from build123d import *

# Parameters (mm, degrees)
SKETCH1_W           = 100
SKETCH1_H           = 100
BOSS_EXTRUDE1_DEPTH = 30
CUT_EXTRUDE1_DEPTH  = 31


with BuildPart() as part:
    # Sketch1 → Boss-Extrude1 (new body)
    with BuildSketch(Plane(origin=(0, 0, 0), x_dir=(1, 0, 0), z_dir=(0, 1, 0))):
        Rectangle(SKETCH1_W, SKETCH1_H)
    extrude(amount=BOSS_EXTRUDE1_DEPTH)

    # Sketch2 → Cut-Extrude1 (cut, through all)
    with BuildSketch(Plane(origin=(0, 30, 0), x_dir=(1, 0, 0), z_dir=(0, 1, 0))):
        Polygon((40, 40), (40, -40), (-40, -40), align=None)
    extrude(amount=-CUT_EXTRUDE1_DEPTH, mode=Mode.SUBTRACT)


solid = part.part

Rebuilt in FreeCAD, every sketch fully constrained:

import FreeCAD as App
import Part
import Sketcher

V = App.Vector
Q = App.Units.Quantity

doc = App.newDocument("Part")
body = doc.addObject("PartDesign::Body", "Body")

sketch1 = body.newObject("Sketcher::SketchObject", "Sketch")
sketch1.AttachmentSupport = (doc.getObject("XZ_Plane"), [""])
sketch1.MapMode = "FlatFace"
sketch1.addGeometry([
    Part.LineSegment(V(-50, -50, 0), V(-50, 50, 0)),
    Part.LineSegment(V(-50, 50, 0), V(50, 50, 0)),
    Part.LineSegment(V(50, 50, 0), V(50, -50, 0)),
    Part.LineSegment(V(50, -50, 0), V(-50, -50, 0)),
], False)
sketch1.addConstraint([
    Sketcher.Constraint("Coincident", 0, 2, 1, 1),
    Sketcher.Constraint("Coincident", 1, 2, 2, 1),
    Sketcher.Constraint("Coincident", 2, 2, 3, 1),
    Sketcher.Constraint("Coincident", 3, 2, 0, 1),
    Sketcher.Constraint("Vertical", 0),
    Sketcher.Constraint("Horizontal", 1),
    Sketcher.Constraint("Vertical", 2),
    Sketcher.Constraint("Horizontal", 3),
    Sketcher.Constraint("Symmetric", 0, 2, 2, 2, -1, 1),
    Sketcher.Constraint("Equal", 3, 0),
    Sketcher.Constraint("DistanceX", 1, 1, 1, 2, Q("100 mm")),
])
pad1 = body.newObject("PartDesign::Pad", "Pad")
pad1.Profile = sketch1
pad1.Length = 30
pad1.Reversed = True

sketch2 = body.newObject("Sketcher::SketchObject", "Sketch001")
sketch2.AttachmentSupport = (doc.getObject("XZ_Plane"), [""])
sketch2.MapMode = "FlatFace"
sketch2.AttachmentOffset = App.Placement(V(0, 0, -30), App.Rotation())
sketch2.addGeometry([
    Part.LineSegment(V(40, 40, 0), V(40, -40, 0)),
    Part.LineSegment(V(40, -40, 0), V(-40, 40, 0)),
    Part.LineSegment(V(-40, 40, 0), V(40, 40, 0)),
], False)
sketch2.addConstraint([
    Sketcher.Constraint("Coincident", 0, 2, 1, 1),
    Sketcher.Constraint("Coincident", 1, 2, 2, 1),
    Sketcher.Constraint("Coincident", 2, 2, 0, 1),
    Sketcher.Constraint("Vertical", 0),
    Sketcher.Constraint("Horizontal", 2),
    Sketcher.Constraint("Symmetric", 0, 2, 1, 2, -1, 1),
    Sketcher.Constraint("Equal", 2, 0),
    Sketcher.Constraint("DistanceX", 2, 1, 2, 2, Q("80 mm")),
])
pocket1 = body.newObject("PartDesign::Pocket", "Pocket")
pocket1.Profile = sketch2
pocket1.Type = "ThroughAll"
pocket1.Reversed = True

doc.recompute()
